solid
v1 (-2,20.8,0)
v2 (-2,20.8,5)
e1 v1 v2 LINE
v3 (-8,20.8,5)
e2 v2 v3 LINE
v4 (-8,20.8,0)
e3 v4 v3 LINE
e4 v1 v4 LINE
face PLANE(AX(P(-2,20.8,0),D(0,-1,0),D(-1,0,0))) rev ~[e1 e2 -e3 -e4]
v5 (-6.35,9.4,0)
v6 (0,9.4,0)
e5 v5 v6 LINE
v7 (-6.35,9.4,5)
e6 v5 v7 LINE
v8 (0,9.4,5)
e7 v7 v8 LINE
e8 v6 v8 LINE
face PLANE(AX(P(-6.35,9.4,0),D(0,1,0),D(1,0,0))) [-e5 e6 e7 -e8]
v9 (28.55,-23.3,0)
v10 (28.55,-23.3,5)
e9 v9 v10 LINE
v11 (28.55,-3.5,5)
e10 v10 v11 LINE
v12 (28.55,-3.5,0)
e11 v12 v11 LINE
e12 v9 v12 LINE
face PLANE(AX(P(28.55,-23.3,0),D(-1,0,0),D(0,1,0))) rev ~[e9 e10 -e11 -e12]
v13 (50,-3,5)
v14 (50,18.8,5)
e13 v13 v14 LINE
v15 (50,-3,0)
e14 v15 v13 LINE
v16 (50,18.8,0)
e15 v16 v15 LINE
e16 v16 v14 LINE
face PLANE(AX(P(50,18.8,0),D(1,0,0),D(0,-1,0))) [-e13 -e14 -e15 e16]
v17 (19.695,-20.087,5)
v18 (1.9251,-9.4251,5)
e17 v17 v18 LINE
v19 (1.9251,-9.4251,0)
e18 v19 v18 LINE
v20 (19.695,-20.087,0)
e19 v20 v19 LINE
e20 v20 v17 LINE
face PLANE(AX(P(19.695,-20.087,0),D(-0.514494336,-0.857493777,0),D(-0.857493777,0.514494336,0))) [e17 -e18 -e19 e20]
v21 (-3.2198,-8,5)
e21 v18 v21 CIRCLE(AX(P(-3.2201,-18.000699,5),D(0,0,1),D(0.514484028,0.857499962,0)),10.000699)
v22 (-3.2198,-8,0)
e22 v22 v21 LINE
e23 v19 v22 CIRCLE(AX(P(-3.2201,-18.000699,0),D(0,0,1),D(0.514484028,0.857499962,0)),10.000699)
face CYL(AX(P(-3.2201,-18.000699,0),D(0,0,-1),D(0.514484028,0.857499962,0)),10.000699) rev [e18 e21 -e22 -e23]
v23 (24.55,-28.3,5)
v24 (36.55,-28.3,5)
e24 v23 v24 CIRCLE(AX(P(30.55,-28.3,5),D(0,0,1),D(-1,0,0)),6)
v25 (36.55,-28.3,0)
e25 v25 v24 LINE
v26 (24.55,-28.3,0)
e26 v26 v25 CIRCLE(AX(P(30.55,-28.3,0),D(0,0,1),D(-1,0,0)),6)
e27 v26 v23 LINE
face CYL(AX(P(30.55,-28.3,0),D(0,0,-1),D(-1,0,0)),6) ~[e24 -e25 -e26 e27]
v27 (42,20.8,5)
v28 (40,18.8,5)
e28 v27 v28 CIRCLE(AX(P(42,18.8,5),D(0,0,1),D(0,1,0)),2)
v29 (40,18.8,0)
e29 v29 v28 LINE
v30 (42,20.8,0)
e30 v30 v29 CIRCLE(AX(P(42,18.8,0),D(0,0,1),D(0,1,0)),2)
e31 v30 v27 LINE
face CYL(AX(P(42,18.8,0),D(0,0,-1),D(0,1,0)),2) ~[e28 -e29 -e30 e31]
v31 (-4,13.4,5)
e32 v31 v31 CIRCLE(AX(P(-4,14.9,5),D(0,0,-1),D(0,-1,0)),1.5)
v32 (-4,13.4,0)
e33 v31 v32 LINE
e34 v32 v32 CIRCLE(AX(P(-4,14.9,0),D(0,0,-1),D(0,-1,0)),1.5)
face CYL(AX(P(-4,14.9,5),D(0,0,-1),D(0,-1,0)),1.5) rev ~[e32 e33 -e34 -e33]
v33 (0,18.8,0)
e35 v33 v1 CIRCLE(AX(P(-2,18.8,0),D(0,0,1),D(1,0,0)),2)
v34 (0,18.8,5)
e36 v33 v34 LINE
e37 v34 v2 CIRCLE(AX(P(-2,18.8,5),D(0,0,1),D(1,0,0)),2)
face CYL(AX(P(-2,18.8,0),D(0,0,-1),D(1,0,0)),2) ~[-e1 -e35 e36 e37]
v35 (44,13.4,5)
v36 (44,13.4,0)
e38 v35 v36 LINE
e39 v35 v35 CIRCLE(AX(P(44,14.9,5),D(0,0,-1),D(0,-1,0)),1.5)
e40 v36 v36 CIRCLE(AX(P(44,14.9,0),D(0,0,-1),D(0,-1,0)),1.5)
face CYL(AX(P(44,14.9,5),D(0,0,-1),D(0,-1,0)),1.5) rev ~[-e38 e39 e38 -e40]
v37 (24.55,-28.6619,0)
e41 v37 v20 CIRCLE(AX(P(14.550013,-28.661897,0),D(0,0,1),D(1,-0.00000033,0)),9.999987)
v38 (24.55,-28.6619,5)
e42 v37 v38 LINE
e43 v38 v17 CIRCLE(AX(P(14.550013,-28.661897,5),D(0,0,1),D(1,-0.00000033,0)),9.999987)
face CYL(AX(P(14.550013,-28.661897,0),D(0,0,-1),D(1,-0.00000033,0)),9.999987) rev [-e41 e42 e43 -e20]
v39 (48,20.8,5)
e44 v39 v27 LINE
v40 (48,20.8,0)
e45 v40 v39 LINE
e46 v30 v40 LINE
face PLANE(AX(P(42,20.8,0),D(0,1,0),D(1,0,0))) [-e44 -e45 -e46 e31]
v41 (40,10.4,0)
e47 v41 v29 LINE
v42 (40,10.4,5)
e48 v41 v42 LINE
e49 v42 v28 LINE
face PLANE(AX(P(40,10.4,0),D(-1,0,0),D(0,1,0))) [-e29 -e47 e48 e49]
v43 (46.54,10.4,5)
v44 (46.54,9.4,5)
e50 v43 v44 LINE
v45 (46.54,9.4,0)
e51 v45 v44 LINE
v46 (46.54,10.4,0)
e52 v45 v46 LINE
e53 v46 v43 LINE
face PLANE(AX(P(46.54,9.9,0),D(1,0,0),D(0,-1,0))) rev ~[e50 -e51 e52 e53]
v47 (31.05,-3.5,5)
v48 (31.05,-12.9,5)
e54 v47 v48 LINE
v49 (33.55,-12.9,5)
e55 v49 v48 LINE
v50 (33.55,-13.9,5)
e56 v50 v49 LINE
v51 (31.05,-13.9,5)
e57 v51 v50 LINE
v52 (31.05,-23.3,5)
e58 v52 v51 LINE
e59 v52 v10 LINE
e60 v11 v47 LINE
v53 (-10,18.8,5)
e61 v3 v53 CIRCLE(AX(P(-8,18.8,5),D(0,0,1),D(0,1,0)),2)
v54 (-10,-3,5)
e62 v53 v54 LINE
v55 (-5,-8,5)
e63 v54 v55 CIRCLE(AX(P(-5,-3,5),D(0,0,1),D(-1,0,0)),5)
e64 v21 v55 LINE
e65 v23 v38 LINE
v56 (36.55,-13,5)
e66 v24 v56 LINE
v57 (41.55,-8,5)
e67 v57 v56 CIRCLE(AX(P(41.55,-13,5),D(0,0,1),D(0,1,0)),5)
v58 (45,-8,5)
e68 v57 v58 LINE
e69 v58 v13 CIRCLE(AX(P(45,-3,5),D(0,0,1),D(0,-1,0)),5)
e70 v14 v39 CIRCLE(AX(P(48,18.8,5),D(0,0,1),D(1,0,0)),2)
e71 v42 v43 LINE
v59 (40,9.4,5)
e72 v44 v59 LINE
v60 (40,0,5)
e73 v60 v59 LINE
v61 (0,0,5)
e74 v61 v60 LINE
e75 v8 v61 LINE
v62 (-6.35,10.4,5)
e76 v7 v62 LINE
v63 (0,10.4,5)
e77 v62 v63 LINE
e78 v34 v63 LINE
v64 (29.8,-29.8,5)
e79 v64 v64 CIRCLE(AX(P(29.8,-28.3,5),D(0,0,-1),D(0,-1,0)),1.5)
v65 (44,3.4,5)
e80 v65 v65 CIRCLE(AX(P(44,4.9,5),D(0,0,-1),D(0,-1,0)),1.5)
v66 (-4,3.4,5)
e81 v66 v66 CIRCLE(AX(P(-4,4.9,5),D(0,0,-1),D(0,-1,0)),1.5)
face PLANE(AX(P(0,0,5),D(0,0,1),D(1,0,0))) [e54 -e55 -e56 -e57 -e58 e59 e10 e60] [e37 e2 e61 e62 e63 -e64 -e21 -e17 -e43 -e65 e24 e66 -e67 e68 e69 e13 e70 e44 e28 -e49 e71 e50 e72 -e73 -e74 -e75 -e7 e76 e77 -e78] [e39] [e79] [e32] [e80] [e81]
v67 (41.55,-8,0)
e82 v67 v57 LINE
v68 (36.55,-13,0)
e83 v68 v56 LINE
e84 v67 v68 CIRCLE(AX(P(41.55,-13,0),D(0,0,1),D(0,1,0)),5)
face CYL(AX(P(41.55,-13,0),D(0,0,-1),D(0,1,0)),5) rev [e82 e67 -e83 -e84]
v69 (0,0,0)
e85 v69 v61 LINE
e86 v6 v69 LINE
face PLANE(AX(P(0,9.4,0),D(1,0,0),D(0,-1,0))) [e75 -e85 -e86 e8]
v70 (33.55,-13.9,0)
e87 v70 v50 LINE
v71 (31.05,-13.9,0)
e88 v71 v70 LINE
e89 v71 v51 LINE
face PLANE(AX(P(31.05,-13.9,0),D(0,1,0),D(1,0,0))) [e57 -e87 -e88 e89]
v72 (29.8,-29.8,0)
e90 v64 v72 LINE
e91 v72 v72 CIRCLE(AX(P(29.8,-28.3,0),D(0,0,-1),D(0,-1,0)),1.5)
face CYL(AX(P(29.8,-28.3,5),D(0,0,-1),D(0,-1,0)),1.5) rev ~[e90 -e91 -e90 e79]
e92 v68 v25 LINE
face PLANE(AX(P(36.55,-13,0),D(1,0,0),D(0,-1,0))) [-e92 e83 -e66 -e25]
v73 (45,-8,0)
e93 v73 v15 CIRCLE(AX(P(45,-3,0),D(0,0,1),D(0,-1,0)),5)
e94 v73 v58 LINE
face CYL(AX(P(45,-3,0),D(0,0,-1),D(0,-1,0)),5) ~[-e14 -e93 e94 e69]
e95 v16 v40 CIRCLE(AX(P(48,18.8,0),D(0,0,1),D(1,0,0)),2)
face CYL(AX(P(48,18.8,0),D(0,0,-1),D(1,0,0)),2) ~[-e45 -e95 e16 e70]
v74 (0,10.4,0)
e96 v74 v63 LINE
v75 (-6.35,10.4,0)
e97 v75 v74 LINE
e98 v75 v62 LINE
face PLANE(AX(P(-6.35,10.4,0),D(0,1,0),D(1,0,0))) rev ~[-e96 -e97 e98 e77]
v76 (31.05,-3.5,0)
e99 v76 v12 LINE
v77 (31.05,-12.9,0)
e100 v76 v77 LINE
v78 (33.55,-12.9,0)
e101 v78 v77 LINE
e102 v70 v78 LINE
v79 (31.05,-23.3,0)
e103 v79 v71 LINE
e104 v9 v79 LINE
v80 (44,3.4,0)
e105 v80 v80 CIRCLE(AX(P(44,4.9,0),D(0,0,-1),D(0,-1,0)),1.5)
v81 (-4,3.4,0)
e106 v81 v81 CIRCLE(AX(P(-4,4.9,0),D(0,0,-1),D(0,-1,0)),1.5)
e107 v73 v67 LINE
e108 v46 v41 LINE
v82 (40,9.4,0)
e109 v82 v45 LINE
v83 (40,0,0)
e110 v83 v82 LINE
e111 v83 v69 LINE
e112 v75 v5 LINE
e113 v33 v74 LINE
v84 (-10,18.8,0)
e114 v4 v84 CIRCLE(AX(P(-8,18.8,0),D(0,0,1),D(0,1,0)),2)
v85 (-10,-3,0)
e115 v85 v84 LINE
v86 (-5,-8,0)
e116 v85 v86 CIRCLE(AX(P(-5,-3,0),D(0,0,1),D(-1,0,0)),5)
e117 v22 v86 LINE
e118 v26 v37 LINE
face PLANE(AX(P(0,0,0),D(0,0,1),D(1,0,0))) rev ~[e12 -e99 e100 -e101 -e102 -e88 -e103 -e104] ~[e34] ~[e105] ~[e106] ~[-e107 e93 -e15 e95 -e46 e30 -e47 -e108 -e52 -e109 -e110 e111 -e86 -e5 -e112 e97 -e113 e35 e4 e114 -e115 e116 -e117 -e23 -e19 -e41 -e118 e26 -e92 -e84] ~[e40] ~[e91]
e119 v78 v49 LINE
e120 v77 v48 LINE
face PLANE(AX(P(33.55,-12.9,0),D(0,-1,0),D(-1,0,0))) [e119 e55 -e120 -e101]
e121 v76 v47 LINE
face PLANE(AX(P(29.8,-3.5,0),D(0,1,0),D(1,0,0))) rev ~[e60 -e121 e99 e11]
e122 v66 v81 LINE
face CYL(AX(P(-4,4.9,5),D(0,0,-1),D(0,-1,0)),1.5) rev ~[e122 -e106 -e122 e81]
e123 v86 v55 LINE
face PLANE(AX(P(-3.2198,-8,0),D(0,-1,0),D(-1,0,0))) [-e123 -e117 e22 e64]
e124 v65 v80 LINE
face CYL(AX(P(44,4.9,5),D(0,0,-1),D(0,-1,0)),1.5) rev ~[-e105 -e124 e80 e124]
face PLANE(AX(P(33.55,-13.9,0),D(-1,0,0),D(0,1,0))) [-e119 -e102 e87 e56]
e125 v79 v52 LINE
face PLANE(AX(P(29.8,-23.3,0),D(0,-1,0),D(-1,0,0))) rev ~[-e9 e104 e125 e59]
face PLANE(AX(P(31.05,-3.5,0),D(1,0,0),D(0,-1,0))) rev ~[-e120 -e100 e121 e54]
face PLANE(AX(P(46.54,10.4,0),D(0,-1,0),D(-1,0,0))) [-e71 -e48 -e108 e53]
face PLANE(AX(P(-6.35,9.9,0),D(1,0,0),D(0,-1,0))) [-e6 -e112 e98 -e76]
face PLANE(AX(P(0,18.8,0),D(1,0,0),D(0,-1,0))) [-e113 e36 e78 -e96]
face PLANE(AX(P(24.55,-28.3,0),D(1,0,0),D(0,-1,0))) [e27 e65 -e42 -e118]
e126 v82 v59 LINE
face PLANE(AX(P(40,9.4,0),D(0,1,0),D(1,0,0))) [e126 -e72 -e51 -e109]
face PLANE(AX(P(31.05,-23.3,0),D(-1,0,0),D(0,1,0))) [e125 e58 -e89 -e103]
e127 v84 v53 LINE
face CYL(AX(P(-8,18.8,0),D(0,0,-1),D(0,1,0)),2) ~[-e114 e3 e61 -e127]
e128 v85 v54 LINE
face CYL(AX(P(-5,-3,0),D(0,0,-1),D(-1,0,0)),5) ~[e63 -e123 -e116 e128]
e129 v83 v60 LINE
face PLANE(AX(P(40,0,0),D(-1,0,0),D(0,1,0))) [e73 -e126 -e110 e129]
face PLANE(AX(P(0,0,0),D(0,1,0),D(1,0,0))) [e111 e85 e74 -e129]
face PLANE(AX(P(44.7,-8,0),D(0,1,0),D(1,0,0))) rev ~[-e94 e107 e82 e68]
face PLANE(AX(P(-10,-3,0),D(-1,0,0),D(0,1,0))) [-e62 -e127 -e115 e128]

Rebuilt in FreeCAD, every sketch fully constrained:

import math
import FreeCAD as App
import Part
import Sketcher

V = App.Vector


def add_polygon(sketch, points):
    """Adds a closed chain of lines whose ends are joined by coincident constraints."""
    first, n = sketch.GeometryCount, len(points)
    for a, b in zip(points, points[1:] + points[:1]):
        sketch.addGeometry(Part.LineSegment(App.Vector(*a, 0), App.Vector(*b, 0)), False)
    for i in range(n):
        sketch.addConstraint(Sketcher.Constraint("Coincident", first + i, 2, first + (i + 1) % n, 1))

doc = App.newDocument("Part")
body = doc.addObject("PartDesign::Body", "Body")

# Sketch on XY plane
sketch1 = doc.addObject("Sketcher::SketchObject", "Sketch")
body.addObject(sketch1)
sketch1.AttachmentSupport = (doc.XY_Plane, [""])
sketch1.MapMode = "FlatFace"
sketch1.addGeometry(Part.LineSegment(V(0, 0, 0), V(0, 9.4, 0)), False)  # 0
sketch1.addGeometry(Part.LineSegment(V(0, 9.4, 0), V(-6.35, 9.4, 0)), False)  # 1
sketch1.addGeometry(Part.LineSegment(V(-6.35, 9.4, 0), V(-6.35, 10.4, 0)), False)  # 2
sketch1.addGeometry(Part.LineSegment(V(-6.35, 10.4, 0), V(0, 10.4, 0)), False)  # 3
sketch1.addGeometry(Part.LineSegment(V(0, 10.4, 0), V(0, 18.8, 0)), False)  # 4
sketch1.addGeometry(Part.ArcOfCircle(Part.Circle(V(-2, 18.8, 0), V(0, 0, 1), 2), math.radians(0), math.radians(90)), False)  # 5
sketch1.addGeometry(Part.LineSegment(V(-2, 20.8, 0), V(-8, 20.8, 0)), False)  # 6
sketch1.addGeometry(Part.ArcOfCircle(Part.Circle(V(-8, 18.8, 0), V(0, 0, 1), 2), math.radians(90), math.radians(180)), False)  # 7
sketch1.addGeometry(Part.LineSegment(V(-10, 18.8, 0), V(-10, -3, 0)), False)  # 8
sketch1.addGeometry(Part.ArcOfCircle(Part.Circle(V(-5, -3, 0), V(0, 0, 1), 5), math.radians(180), math.radians(270)), False)  # 9
sketch1.addGeometry(Part.LineSegment(V(-5, -8, 0), V(-3.22, -8, 0)), False)  # 10
sketch1.addGeometry(Part.ArcOfCircle(Part.Circle(V(-3.22, -18, 0), V(0, 0, 1), 10), math.radians(59), math.radians(90)), False)  # 11
sketch1.addGeometry(Part.LineSegment(V(1.93, -9.43, 0), V(19.7, -20.09, 0)), False)  # 12
sketch1.addGeometry(Part.ArcOfCircle(Part.Circle(V(14.55, -28.66, 0), V(0, 0, 1), 10), math.radians(0), math.radians(59)), False)  # 13
sketch1.addGeometry(Part.LineSegment(V(24.55, -28.66, 0), V(24.55, -28.3, 0)), False)  # 14
sketch1.addGeometry(Part.ArcOfCircle(Part.Circle(V(30.55, -28.3, 0), V(0, 0, 1), 6), math.radians(180), math.radians(360)), False)  # 15
sketch1.addGeometry(Part.LineSegment(V(36.55, -28.3, 0), V(36.55, -13, 0)), False)  # 16
sketch1.addGeometry(Part.ArcOfCircle(Part.Circle(V(41.55, -13, 0), V(0, 0, 1), 5), math.radians(90), math.radians(180)), False)  # 17
sketch1.addGeometry(Part.LineSegment(V(41.55, -8, 0), V(45, -8, 0)), False)  # 18
sketch1.addGeometry(Part.ArcOfCircle(Part.Circle(V(45, -3, 0), V(0, 0, 1), 5), math.radians(-90), math.radians(0)), False)  # 19
sketch1.addGeometry(Part.LineSegment(V(50, -3, 0), V(50, 18.8, 0)), False)  # 20
sketch1.addGeometry(Part.ArcOfCircle(Part.Circle(V(48, 18.8, 0), V(0, 0, 1), 2), math.radians(0), math.radians(90)), False)  # 21
sketch1.addGeometry(Part.LineSegment(V(48, 20.8, 0), V(42, 20.8, 0)), False)  # 22
sketch1.addGeometry(Part.ArcOfCircle(Part.Circle(V(42, 18.8, 0), V(0, 0, 1), 2), math.radians(90), math.radians(180)), False)  # 23
sketch1.addGeometry(Part.LineSegment(V(40, 18.8, 0), V(40, 10.4, 0)), False)  # 24
sketch1.addGeometry(Part.LineSegment(V(40, 10.4, 0), V(46.54, 10.4, 0)), False)  # 25
sketch1.addGeometry(Part.LineSegment(V(46.54, 10.4, 0), V(46.54, 9.4, 0)), False)  # 26
sketch1.addGeometry(Part.LineSegment(V(46.54, 9.4, 0), V(40, 9.4, 0)), False)  # 27
sketch1.addGeometry(Part.LineSegment(V(40, 9.4, 0), V(40, 0, 0)), False)  # 28
sketch1.addGeometry(Part.LineSegment(V(40, 0, 0), V(0, 0, 0)), False)  # 29
add_polygon(sketch1, [(28.55, -23.3), (28.55, -3.5), (31.05, -3.5), (31.05, -12.9), (33.55, -12.9), (33.55, -13.9), (31.05, -13.9), (31.05, -23.3)])  # lines 30-37
sketch1.addConstraint([
    Sketcher.Constraint("Coincident", 0, 2, 1, 1),
    Sketcher.Constraint("Coincident", 1, 2, 2, 1),
    Sketcher.Constraint("Coincident", 2, 2, 3, 1),
    Sketcher.Constraint("Coincident", 3, 2, 4, 1),
    Sketcher.Constraint("Tangent", 4, 2, 5, 1),
    Sketcher.Constraint("Tangent", 5, 2, 6, 1),
    Sketcher.Constraint("Tangent", 6, 2, 7, 1),
    Sketcher.Constraint("Tangent", 7, 2, 8, 1),
    Sketcher.Constraint("Tangent", 8, 2, 9, 1),
    Sketcher.Constraint("Tangent", 9, 2, 10, 1),
    Sketcher.Constraint("Tangent", 10, 2, 11, 2),
    Sketcher.Constraint("Tangent", 11, 1, 12, 1),
    Sketcher.Constraint("Tangent", 12, 2, 13, 2),
    Sketcher.Constraint("Tangent", 13, 1, 14, 1),
    Sketcher.Constraint("Tangent", 14, 2, 15, 1),
    Sketcher.Constraint("Tangent", 15, 2, 16, 1),
    Sketcher.Constraint("Tangent", 16, 2, 17, 2),
    Sketcher.Constraint("Tangent", 17, 1, 18, 1),
    Sketcher.Constraint("Tangent", 18, 2, 19, 1),
    Sketcher.Constraint("Tangent", 19, 2, 20, 1),
    Sketcher.Constraint("Tangent", 20, 2, 21, 1),
    Sketcher.Constraint("Tangent", 21, 2, 22, 1),
    Sketcher.Constraint("Tangent", 22, 2, 23, 1),
    Sketcher.Constraint("Tangent", 23, 2, 24, 1),
    Sketcher.Constraint("Coincident", 24, 2, 25, 1),
    Sketcher.Constraint("Coincident", 25, 2, 26, 1),
    Sketcher.Constraint("Coincident", 26, 2, 27, 1),
    Sketcher.Constraint("Coincident", 27, 2, 28, 1),
    Sketcher.Constraint("Coincident", 28, 2, 29, 1),
    Sketcher.Constraint("Coincident", 29, 2, 0, 1),
    Sketcher.Constraint("Vertical", 0),
    Sketcher.Constraint("Horizontal", 1),
    Sketcher.Constraint("Vertical", 2),
    Sketcher.Constraint("Horizontal", 3),
    Sketcher.Constraint("Vertical", 4),
    Sketcher.Constraint("Horizontal", 6),
    Sketcher.Constraint("Vertical", 8),
    Sketcher.Constraint("Horizontal", 10),
    Sketcher.Constraint("Vertical", 14),
    Sketcher.Constraint("Vertical", 16),
    Sketcher.Constraint("Horizontal", 18),
    Sketcher.Constraint("Vertical", 20),
    Sketcher.Constraint("Horizontal", 22),
    Sketcher.Constraint("Vertical", 24),
    Sketcher.Constraint("Horizontal", 25),
    Sketcher.Constraint("Vertical", 26),
    Sketcher.Constraint("Horizontal", 27),
    Sketcher.Constraint("Vertical", 28),
    Sketcher.Constraint("Horizontal", 29),
    Sketcher.Constraint("Vertical", 30),
    Sketcher.Constraint("Horizontal", 31),
    Sketcher.Constraint("Vertical", 32),
    Sketcher.Constraint("Horizontal", 33),
    Sketcher.Constraint("Vertical", 34),
    Sketcher.Constraint("Horizontal", 35),
    Sketcher.Constraint("Vertical", 36),
    Sketcher.Constraint("Horizontal", 37),
    Sketcher.Constraint("Coincident", 29, 2, -1, 1),
    Sketcher.Constraint("Equal", 5, 7),
    Sketcher.Constraint("Equal", 11, 13),
    Sketcher.Constraint("Equal", 9, 17),
    Sketcher.Constraint("Equal", 17, 19),
    Sketcher.Constraint("Equal", 7, 21),
    Sketcher.Constraint("Equal", 21, 23),
    Sketcher.Constraint("PointOnObject", 3, 2, -2),
    Sketcher.Constraint("Horizontal", 9, 3, 19, 3),
    Sketcher.Constraint("Horizontal", 7, 3, 21, 3),
    Sketcher.Constraint("Horizontal", 3, 2, 24, 2),
    Sketcher.Constraint("Horizontal", 1, 2, 26, 2),
    Sketcher.Constraint("Vertical", 24, 2, 27, 2),
    Sketcher.Constraint("Vertical", 32, 2, 35, 2),
    Sketcher.Constraint("Equal", 6, 22),
    Sketcher.Constraint("Equal", 31, 33),
    Sketcher.Constraint("Equal", 28, 32),
    Sketcher.Constraint("Equal", 26, 34),
    Sketcher.Constraint("Equal", 32, 36),
    Sketcher.Constraint("Radius", 5, 2.0),
    Sketcher.Constraint("Radius", 9, 5.0),
    Sketcher.Constraint("Radius", 11, 10.0),
    Sketcher.Constraint("DistanceX", 29, 2, 29, 1, 40.0),
    Sketcher.Constraint("DistanceY", 2, 1, 2, 2, 1.0),
    Sketcher.Constraint("DistanceX", 31, 1, 31, 2, 2.5),
    Sketcher.Constraint("DistanceY", 0, 1, 0, 2, 9.4),
    Sketcher.Constraint("DistanceX", 9, 3, -1, 1, 5.0),
    Sketcher.Constraint("Radius", 15, 6.0),
    Sketcher.Constraint("DistanceY", 15, 3, 36, 2, 5.0),
    Sketcher.Constraint("DistanceX", 37, 2, 15, 3, 2.0),
    Sketcher.Constraint("DistanceY", 0, 2, 5, 3, 9.4),
    Sketcher.Constraint("DistanceY", 8, 2, 8, 1, 21.8),
    Sketcher.Constraint("DistanceY", 16, 1, 16, 2, 15.3),
    Sketcher.Constraint("DistanceX", 1, 2, 1, 1, 6.35),
    Sketcher.Constraint("DistanceX", 18, 1, 18, 2, 3.45),
    Sketcher.Constraint("DistanceX", 25, 1, 25, 2, 6.54),
    Sketcher.Constraint("DistanceY", 14, 1, 14, 2, 0.362),
    Sketcher.Constraint("DistanceX", 11, 1, 12, 2, 17.77),
])
pad1 = doc.addObject("PartDesign::Pad", "Pad")
body.addObject(pad1)
pad1.Profile = sketch1
pad1.Length = 5

# Sketch on XY plane
sketch2 = doc.addObject("Sketcher::SketchObject", "Sketch001")
body.addObject(sketch2)
sketch2.AttachmentSupport = (doc.XY_Plane, [""])
sketch2.MapMode = "FlatFace"
sketch2.AttachmentOffset = App.Placement(V(0, 0, 5), App.Rotation())
sketch2.addGeometry([
    Part.Circle(V(-4, 14.9, 0), V(0, 0, 1), 1.5),  # 0
    Part.Circle(V(-4, 4.9, 0), V(0, 0, 1), 1.5),  # 1
    Part.Circle(V(44, 14.9, 0), V(0, 0, 1), 1.5),  # 2
    Part.Circle(V(44, 4.9, 0), V(0, 0, 1), 1.5),  # 3
    Part.Circle(V(29.8, -28.3, 0), V(0, 0, 1), 1.5),  # 4
], False)
sketch2.addConstraint([
    Sketcher.Constraint("Equal", 0, 1),
    Sketcher.Constraint("Equal", 1, 2),
    Sketcher.Constraint("Equal", 2, 3),
    Sketcher.Constraint("Equal", 3, 4),
    Sketcher.Constraint("Horizontal", 0, 3, 2, 3),
    Sketcher.Constraint("Horizontal", 1, 3, 3, 3),
    Sketcher.Constraint("Vertical", 0, 3, 1, 3),
    Sketcher.Constraint("Vertical", 2, 3, 3, 3),
    Sketcher.Constraint("Diameter", 0, 3.0),
    Sketcher.Constraint("DistanceX", 0, 3, -1, 1, 4.0),
    Sketcher.Constraint("DistanceX", -1, 1, 2, 3, 44.0),
    Sketcher.Constraint("DistanceY", 1, 3, 0, 3, 10.0),
    Sketcher.Constraint("DistanceY", -1, 1, 0, 3, 14.9),
    Sketcher.Constraint("DistanceX", -1, 1, 4, 3, 29.8),
    Sketcher.Constraint("DistanceY", 4, 3, -1, 1, 28.3),
])
doc.recompute()
hole = doc.addObject("PartDesign::Hole", "Hole")
body.addObject(hole)
hole.Profile = sketch2
hole.ThreadType = "None"
hole.Diameter = 3
hole.DepthType = "ThroughAll"

doc.recompute()
